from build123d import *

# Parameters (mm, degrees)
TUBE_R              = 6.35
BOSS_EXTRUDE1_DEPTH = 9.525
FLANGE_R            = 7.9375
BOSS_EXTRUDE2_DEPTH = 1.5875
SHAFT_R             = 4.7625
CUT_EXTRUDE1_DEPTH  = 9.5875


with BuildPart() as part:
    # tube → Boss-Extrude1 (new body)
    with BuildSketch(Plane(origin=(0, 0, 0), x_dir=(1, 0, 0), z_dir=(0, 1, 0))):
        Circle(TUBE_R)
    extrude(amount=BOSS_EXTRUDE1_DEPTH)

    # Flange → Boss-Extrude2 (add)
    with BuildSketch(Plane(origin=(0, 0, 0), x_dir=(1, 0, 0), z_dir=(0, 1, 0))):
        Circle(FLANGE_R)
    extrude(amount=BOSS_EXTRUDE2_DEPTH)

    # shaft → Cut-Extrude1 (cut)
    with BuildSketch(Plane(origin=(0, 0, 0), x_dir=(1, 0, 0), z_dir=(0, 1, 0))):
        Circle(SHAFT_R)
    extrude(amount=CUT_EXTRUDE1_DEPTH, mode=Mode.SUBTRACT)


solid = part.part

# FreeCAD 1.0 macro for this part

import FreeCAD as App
import Part
import Sketcher
from FreeCAD import Vector
Q = App.Units.Quantity

doc = App.newDocument("Part")
body = doc.addObject("PartDesign::Body", "Body")

# Sketch on XZ plane
sketch1 = doc.addObject("Sketcher::SketchObject", "Sketch")
body.addObject(sketch1)
sketch1.AttachmentSupport = (doc.XZ_Plane, [""])
sketch1.MapMode = "FlatFace"
sketch1.addGeometry(Part.Circle(Vector(0, 0, 0), Vector(0, 0, 1), 6), False)
sketch1.addConstraint(Sketcher.Constraint("Coincident", 0, 3, -1, 1))
sketch1.addConstraint(Sketcher.Constraint("Diameter", 0, Q("0.5 in")))
pad1 = doc.addObject("PartDesign::Pad", "Pad")
body.addObject(pad1)
pad1.Profile = sketch1
pad1.Length = Q("0.375 in")
pad1.Reversed = True

# Sketch on XZ plane
sketch2 = doc.addObject("Sketcher::SketchObject", "Sketch001")
body.addObject(sketch2)
sketch2.AttachmentSupport = (doc.XZ_Plane, [""])
sketch2.MapMode = "FlatFace"
sketch2.addGeometry(Part.Circle(Vector(0, 0, 0), Vector(0, 0, 1), 8), False)
sketch2.addConstraint(Sketcher.Constraint("Coincident", 0, 3, -1, 1))
sketch2.addConstraint(Sketcher.Constraint("Diameter", 0, Q("0.625 in")))
pad2 = doc.addObject("PartDesign::Pad", "Pad001")
body.addObject(pad2)
pad2.Profile = sketch2
pad2.Length = Q("0.0625 in")
pad2.Reversed = True

# Sketch on XZ plane
sketch3 = doc.addObject("Sketcher::SketchObject", "Sketch002")
body.addObject(sketch3)
sketch3.AttachmentSupport = (doc.XZ_Plane, [""])
sketch3.MapMode = "FlatFace"
sketch3.addGeometry(Part.Circle(Vector(0, 0, 0), Vector(0, 0, 1), 4.8), False)
sketch3.addConstraint(Sketcher.Constraint("Coincident", 0, 3, -1, 1))
sketch3.addConstraint(Sketcher.Constraint("Diameter", 0, Q("0.375 in")))
pocket1 = doc.addObject("PartDesign::Pocket", "Pocket")
body.addObject(pocket1)
pocket1.Profile = sketch3
pocket1.Length = 9.5875

doc.recompute()
